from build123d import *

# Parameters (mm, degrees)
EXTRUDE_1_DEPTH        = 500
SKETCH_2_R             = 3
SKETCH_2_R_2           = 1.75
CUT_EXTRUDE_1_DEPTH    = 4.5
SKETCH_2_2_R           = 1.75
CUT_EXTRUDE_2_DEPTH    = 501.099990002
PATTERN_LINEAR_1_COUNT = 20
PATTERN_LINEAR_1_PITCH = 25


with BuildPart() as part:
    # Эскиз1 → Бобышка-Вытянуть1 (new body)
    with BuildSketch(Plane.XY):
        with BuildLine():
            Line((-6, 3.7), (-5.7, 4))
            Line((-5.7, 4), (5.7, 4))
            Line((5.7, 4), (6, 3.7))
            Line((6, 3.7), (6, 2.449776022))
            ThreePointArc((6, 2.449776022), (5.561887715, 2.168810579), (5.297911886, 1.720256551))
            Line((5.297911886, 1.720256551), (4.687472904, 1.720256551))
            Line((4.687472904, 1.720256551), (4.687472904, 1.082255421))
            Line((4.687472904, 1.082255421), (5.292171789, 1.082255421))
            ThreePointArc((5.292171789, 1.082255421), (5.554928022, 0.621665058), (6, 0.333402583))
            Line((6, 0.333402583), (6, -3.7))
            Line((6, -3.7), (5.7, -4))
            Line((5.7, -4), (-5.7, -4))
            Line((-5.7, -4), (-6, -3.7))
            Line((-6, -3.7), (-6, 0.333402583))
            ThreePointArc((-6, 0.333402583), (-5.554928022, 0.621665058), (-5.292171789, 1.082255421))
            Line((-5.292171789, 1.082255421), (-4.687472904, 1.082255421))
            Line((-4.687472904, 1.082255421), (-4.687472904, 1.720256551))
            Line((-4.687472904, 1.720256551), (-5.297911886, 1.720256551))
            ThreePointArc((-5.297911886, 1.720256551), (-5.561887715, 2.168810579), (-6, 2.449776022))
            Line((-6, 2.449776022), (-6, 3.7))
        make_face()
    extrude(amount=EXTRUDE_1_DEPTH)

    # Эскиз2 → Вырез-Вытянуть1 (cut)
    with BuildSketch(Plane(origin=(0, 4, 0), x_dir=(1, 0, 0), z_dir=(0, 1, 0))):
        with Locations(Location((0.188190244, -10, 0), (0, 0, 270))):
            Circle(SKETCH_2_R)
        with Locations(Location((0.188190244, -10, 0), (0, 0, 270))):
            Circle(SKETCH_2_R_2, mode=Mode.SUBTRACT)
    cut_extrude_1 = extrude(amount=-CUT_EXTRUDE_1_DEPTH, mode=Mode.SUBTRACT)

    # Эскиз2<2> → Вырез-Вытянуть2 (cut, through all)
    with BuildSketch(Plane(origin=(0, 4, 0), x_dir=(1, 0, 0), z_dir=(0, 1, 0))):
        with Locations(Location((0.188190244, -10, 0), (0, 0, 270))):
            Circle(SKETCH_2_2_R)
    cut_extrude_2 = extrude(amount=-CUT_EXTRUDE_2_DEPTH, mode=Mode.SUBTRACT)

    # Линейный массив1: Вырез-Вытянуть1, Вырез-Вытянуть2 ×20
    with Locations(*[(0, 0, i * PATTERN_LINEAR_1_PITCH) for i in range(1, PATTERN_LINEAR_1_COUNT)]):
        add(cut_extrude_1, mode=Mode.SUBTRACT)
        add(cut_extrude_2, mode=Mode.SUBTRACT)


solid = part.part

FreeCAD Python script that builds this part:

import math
import FreeCAD as App
import Part
import Sketcher
from FreeCAD import Vector
Q = App.Units.Quantity

doc = App.newDocument("Part")
params = doc.addObject("Spreadsheet::Sheet", "Params")
for row, (alias, value) in enumerate([
    ("sketch1_width", "11.4 mm"),
    ("pad1_length", "500 mm"),
    ("sketch2_diameter", "6 mm"),
    ("sketch2_diameter2", "3.5 mm"),
    ("pocket1_length", "4.5 mm"),
    ("sketch3_diameter", "3.5 mm"),
    ("linearpattern_pitch", "25 mm"),
], start=1):
    params.set(f"A{row}", alias)
    params.set(f"B{row}", "=" + value)
    params.setAlias(f"B{row}", alias)

body = doc.addObject("PartDesign::Body", "Body")

sketch1 = body.newObject("Sketcher::SketchObject", "Sketch")
sketch1.AttachmentSupport = (doc.getObject("XY_Plane"), [""])
sketch1.MapMode = "FlatFace"
sketch1.addGeometry(Part.LineSegment(Vector(-5.7, 4, 0), Vector(-6, 3.7, 0)), False)
sketch1.addGeometry(Part.LineSegment(Vector(-6, 3.7, 0), Vector(-6, 2.449776, 0)), False)
sketch1.addGeometry(Part.ArcOfCircle(Part.Circle(Vector(-6.369476, 1.391589, 0), Vector(0, 0, 1), 1.120835), math.radians(17.051684), math.radians(70.75287)), False)
sketch1.addGeometry(Part.LineSegment(Vector(-5.297912, 1.720257, 0), Vector(-4.687473, 1.720257, 0)), False)
sketch1.addGeometry(Part.LineSegment(Vector(-4.687473, 1.720257, 0), Vector(-4.687473, 1.082255, 0)), False)
sketch1.addGeometry(Part.LineSegment(Vector(-4.687473, 1.082255, 0), Vector(-5.292172, 1.082255, 0)), False)
sketch1.addGeometry(Part.ArcOfCircle(Part.Circle(Vector(-6.369476, 1.391589, 0), Vector(0, 0, 1), 1.120835), math.radians(-70.75287), math.radians(-16.020732)), False)
sketch1.addGeometry(Part.LineSegment(Vector(-6, 0.333403, 0), Vector(-6, -3.7, 0)), False)
sketch1.addGeometry(Part.LineSegment(Vector(-6, -3.7, 0), Vector(-5.7, -4, 0)), False)
sketch1.addGeometry(Part.LineSegment(Vector(-5.7, -4, 0), Vector(5.7, -4, 0)), False)
sketch1.addGeometry(Part.LineSegment(Vector(5.7, -4, 0), Vector(6, -3.7, 0)), False)
sketch1.addGeometry(Part.LineSegment(Vector(6, -3.7, 0), Vector(6, 0.333403, 0)), False)
sketch1.addGeometry(Part.ArcOfCircle(Part.Circle(Vector(6.369476, 1.391589, 0), Vector(0, 0, 1), 1.120835), math.radians(-163.979268), math.radians(-109.24713)), False)
sketch1.addGeometry(Part.LineSegment(Vector(5.292172, 1.082255, 0), Vector(4.687473, 1.082255, 0)), False)
sketch1.addGeometry(Part.LineSegment(Vector(4.687473, 1.082255, 0), Vector(4.687473, 1.720257, 0)), False)
sketch1.addGeometry(Part.LineSegment(Vector(4.687473, 1.720257, 0), Vector(5.297912, 1.720257, 0)), False)
sketch1.addGeometry(Part.ArcOfCircle(Part.Circle(Vector(6.369476, 1.391589, 0), Vector(0, 0, 1), 1.120835), math.radians(109.24713), math.radians(162.948316)), False)
sketch1.addGeometry(Part.LineSegment(Vector(6, 2.449776, 0), Vector(6, 3.7, 0)), False)
sketch1.addGeometry(Part.LineSegment(Vector(6, 3.7, 0), Vector(5.7, 4, 0)), False)
sketch1.addGeometry(Part.LineSegment(Vector(5.7, 4, 0), Vector(-5.7, 4, 0)), False)
sketch1.addConstraint(Sketcher.Constraint("Coincident", 0, 2, 1, 1))
sketch1.addConstraint(Sketcher.Constraint("Coincident", 1, 2, 2, 2))
sketch1.addConstraint(Sketcher.Constraint("Coincident", 2, 1, 3, 1))
sketch1.addConstraint(Sketcher.Constraint("Coincident", 3, 2, 4, 1))
sketch1.addConstraint(Sketcher.Constraint("Coincident", 4, 2, 5, 1))
sketch1.addConstraint(Sketcher.Constraint("Coincident", 5, 2, 6, 2))
sketch1.addConstraint(Sketcher.Constraint("Coincident", 6, 1, 7, 1))
sketch1.addConstraint(Sketcher.Constraint("Coincident", 7, 2, 8, 1))
sketch1.addConstraint(Sketcher.Constraint("Coincident", 8, 2, 9, 1))
sketch1.addConstraint(Sketcher.Constraint("Coincident", 9, 2, 10, 1))
sketch1.addConstraint(Sketcher.Constraint("Coincident", 10, 2, 11, 1))
sketch1.addConstraint(Sketcher.Constraint("Coincident", 11, 2, 12, 2))
sketch1.addConstraint(Sketcher.Constraint("Coincident", 12, 1, 13, 1))
sketch1.addConstraint(Sketcher.Constraint("Coincident", 13, 2, 14, 1))
sketch1.addConstraint(Sketcher.Constraint("Coincident", 14, 2, 15, 1))
sketch1.addConstraint(Sketcher.Constraint("Coincident", 15, 2, 16, 2))
sketch1.addConstraint(Sketcher.Constraint("Coincident", 16, 1, 17, 1))
sketch1.addConstraint(Sketcher.Constraint("Coincident", 17, 2, 18, 1))
sketch1.addConstraint(Sketcher.Constraint("Coincident", 18, 2, 19, 1))
sketch1.addConstraint(Sketcher.Constraint("Coincident", 19, 2, 0, 1))
sketch1.addConstraint(Sketcher.Constraint("Vertical", 1))
sketch1.addConstraint(Sketcher.Constraint("Horizontal", 3))
sketch1.addConstraint(Sketcher.Constraint("Vertical", 4))
sketch1.addConstraint(Sketcher.Constraint("Horizontal", 5))
sketch1.addConstraint(Sketcher.Constraint("Vertical", 7))
sketch1.addConstraint(Sketcher.Constraint("Horizontal", 9))
sketch1.addConstraint(Sketcher.Constraint("Vertical", 11))
sketch1.addConstraint(Sketcher.Constraint("Horizontal", 13))
sketch1.addConstraint(Sketcher.Constraint("Vertical", 14))
sketch1.addConstraint(Sketcher.Constraint("Horizontal", 15))
sketch1.addConstraint(Sketcher.Constraint("Vertical", 17))
sketch1.addConstraint(Sketcher.Constraint("Horizontal", 19))
sketch1.addConstraint(Sketcher.Constraint("Coincident", 6, 3, 2, 3))
sketch1.addConstraint(Sketcher.Constraint("Coincident", 16, 3, 12, 3))
sketch1.addConstraint(Sketcher.Constraint("Equal", 2, 6))
sketch1.addConstraint(Sketcher.Constraint("Equal", 6, 12))
sketch1.addConstraint(Sketcher.Constraint("Equal", 12, 16))
sketch1.addConstraint(Sketcher.Constraint("Symmetric", 0, 2, 10, 2, -1, 1))
sketch1.addConstraint(Sketcher.Constraint("Symmetric", 7, 2, 17, 2, -1, 1))
sketch1.addConstraint(Sketcher.Constraint("Symmetric", 8, 2, 18, 2, -1, 1))
sketch1.addConstraint(Sketcher.Constraint("Symmetric", 2, 3, 12, 3, -2))
sketch1.addConstraint(Sketcher.Constraint("Symmetric", 7, 2, 10, 2, -2))
sketch1.addConstraint(Sketcher.Constraint("Symmetric", 4, 2, 13, 2, -2))
sketch1.addConstraint(Sketcher.Constraint("Perpendicular", 0, 8))
sketch1.addConstraint(Sketcher.Constraint("Perpendicular", 8, 10))
sketch1.addConstraint(Sketcher.Constraint("Horizontal", 3, 2, 14, 2))
sketch1.addConstraint(Sketcher.Constraint("Vertical", 9, 2, 18, 2))
sketch1.addConstraint(Sketcher.Constraint("DistanceX", 9, 1, 9, 2, Q("11.4 mm")))
sketch1.addConstraint(Sketcher.Constraint("DistanceX", 0, 2, -1, 1, Q("6 mm")))
sketch1.addConstraint(Sketcher.Constraint("DistanceY", 8, 2, -1, 1, Q("4 mm")))
sketch1.addConstraint(Sketcher.Constraint("DistanceY", 4, 2, 4, 1, Q("0.638001 mm")))
sketch1.addConstraint(Sketcher.Constraint("DistanceX", 5, 2, 5, 1, Q("0.604699 mm")))
sketch1.addConstraint(Sketcher.Constraint("Radius", 2, Q("1.120835 mm")))
sketch1.addConstraint(Sketcher.Constraint("DistanceX", 3, 1, 3, 2, Q("0.610439 mm")))
sketch1.addConstraint(Sketcher.Constraint("DistanceY", 1, 2, 1, 1, Q("1.250224 mm")))
sketch1.addConstraint(Sketcher.Constraint("DistanceY", 7, 2, 7, 1, Q("4.033403 mm")))
sketch1.setExpression("Constraints[47]", "Params.sketch1_width")
pad1 = body.newObject("PartDesign::Pad", "Pad")
pad1.Profile = sketch1
pad1.setExpression("Length", "Params.pad1_length")

sketch2 = body.newObject("Sketcher::SketchObject", "Sketch001")
sketch2.AttachmentSupport = (doc.getObject("XZ_Plane"), [""])
sketch2.MapMode = "FlatFace"
sketch2.AttachmentOffset = App.Placement(Vector(0, 0, -4), App.Rotation())
sketch2.addGeometry(Part.Circle(Vector(0.18819, 10, 0), Vector(0, 0, 1), 3), False)
sketch2.addGeometry(Part.Circle(Vector(0.18819, 10, 0), Vector(0, 0, 1), 1.75), False)
sketch2.addConstraint(Sketcher.Constraint("Coincident", 1, 3, 0, 3))
sketch2.addConstraint(Sketcher.Constraint("Diameter", 0, Q("6 mm")))
sketch2.addConstraint(Sketcher.Constraint("Diameter", 1, Q("3.5 mm")))
sketch2.addConstraint(Sketcher.Constraint("DistanceY", -1, 1, 0, 3, Q("10 mm")))
sketch2.addConstraint(Sketcher.Constraint("DistanceX", -1, 1, 0, 3, Q("0.18819 mm")))
sketch2.setExpression("Constraints[1]", "Params.sketch2_diameter")
sketch2.setExpression("Constraints[2]", "Params.sketch2_diameter2")
pocket1 = body.newObject("PartDesign::Pocket", "Pocket")
pocket1.Profile = sketch2
pocket1.setExpression("Length", "Params.pocket1_length")
pocket1.Reversed = True

sketch3 = body.newObject("Sketcher::SketchObject", "Sketch002")
sketch3.AttachmentSupport = (doc.getObject("XZ_Plane"), [""])
sketch3.MapMode = "FlatFace"
sketch3.AttachmentOffset = App.Placement(Vector(0, 0, -4), App.Rotation())
sketch3.addGeometry(Part.Circle(Vector(0.18819, 10, 0), Vector(0, 0, 1), 1.75), False)
sketch3.addConstraint(Sketcher.Constraint("Diameter", 0, Q("3.5 mm")))
sketch3.addConstraint(Sketcher.Constraint("DistanceY", -1, 1, 0, 3, Q("10 mm")))
sketch3.addConstraint(Sketcher.Constraint("DistanceX", -1, 1, 0, 3, Q("0.18819 mm")))
sketch3.setExpression("Constraints[0]", "Params.sketch3_diameter")
pocket2 = body.newObject("PartDesign::Pocket", "Pocket001")
pocket2.Profile = sketch3
pocket2.Type = "ThroughAll"
pocket2.Reversed = True
doc.recompute()

linearpattern = body.newObject("PartDesign::LinearPattern", "LinearPattern")
linearpattern.Originals = [pocket1, pocket2]
linearpattern.Direction = (doc.getObject("Z_Axis"), [""])
linearpattern.Mode = "offset"
linearpattern.setExpression("Offset", "Params.linearpattern_pitch")
linearpattern.Occurrences = 20
body.Tip = linearpattern

doc.recompute()
